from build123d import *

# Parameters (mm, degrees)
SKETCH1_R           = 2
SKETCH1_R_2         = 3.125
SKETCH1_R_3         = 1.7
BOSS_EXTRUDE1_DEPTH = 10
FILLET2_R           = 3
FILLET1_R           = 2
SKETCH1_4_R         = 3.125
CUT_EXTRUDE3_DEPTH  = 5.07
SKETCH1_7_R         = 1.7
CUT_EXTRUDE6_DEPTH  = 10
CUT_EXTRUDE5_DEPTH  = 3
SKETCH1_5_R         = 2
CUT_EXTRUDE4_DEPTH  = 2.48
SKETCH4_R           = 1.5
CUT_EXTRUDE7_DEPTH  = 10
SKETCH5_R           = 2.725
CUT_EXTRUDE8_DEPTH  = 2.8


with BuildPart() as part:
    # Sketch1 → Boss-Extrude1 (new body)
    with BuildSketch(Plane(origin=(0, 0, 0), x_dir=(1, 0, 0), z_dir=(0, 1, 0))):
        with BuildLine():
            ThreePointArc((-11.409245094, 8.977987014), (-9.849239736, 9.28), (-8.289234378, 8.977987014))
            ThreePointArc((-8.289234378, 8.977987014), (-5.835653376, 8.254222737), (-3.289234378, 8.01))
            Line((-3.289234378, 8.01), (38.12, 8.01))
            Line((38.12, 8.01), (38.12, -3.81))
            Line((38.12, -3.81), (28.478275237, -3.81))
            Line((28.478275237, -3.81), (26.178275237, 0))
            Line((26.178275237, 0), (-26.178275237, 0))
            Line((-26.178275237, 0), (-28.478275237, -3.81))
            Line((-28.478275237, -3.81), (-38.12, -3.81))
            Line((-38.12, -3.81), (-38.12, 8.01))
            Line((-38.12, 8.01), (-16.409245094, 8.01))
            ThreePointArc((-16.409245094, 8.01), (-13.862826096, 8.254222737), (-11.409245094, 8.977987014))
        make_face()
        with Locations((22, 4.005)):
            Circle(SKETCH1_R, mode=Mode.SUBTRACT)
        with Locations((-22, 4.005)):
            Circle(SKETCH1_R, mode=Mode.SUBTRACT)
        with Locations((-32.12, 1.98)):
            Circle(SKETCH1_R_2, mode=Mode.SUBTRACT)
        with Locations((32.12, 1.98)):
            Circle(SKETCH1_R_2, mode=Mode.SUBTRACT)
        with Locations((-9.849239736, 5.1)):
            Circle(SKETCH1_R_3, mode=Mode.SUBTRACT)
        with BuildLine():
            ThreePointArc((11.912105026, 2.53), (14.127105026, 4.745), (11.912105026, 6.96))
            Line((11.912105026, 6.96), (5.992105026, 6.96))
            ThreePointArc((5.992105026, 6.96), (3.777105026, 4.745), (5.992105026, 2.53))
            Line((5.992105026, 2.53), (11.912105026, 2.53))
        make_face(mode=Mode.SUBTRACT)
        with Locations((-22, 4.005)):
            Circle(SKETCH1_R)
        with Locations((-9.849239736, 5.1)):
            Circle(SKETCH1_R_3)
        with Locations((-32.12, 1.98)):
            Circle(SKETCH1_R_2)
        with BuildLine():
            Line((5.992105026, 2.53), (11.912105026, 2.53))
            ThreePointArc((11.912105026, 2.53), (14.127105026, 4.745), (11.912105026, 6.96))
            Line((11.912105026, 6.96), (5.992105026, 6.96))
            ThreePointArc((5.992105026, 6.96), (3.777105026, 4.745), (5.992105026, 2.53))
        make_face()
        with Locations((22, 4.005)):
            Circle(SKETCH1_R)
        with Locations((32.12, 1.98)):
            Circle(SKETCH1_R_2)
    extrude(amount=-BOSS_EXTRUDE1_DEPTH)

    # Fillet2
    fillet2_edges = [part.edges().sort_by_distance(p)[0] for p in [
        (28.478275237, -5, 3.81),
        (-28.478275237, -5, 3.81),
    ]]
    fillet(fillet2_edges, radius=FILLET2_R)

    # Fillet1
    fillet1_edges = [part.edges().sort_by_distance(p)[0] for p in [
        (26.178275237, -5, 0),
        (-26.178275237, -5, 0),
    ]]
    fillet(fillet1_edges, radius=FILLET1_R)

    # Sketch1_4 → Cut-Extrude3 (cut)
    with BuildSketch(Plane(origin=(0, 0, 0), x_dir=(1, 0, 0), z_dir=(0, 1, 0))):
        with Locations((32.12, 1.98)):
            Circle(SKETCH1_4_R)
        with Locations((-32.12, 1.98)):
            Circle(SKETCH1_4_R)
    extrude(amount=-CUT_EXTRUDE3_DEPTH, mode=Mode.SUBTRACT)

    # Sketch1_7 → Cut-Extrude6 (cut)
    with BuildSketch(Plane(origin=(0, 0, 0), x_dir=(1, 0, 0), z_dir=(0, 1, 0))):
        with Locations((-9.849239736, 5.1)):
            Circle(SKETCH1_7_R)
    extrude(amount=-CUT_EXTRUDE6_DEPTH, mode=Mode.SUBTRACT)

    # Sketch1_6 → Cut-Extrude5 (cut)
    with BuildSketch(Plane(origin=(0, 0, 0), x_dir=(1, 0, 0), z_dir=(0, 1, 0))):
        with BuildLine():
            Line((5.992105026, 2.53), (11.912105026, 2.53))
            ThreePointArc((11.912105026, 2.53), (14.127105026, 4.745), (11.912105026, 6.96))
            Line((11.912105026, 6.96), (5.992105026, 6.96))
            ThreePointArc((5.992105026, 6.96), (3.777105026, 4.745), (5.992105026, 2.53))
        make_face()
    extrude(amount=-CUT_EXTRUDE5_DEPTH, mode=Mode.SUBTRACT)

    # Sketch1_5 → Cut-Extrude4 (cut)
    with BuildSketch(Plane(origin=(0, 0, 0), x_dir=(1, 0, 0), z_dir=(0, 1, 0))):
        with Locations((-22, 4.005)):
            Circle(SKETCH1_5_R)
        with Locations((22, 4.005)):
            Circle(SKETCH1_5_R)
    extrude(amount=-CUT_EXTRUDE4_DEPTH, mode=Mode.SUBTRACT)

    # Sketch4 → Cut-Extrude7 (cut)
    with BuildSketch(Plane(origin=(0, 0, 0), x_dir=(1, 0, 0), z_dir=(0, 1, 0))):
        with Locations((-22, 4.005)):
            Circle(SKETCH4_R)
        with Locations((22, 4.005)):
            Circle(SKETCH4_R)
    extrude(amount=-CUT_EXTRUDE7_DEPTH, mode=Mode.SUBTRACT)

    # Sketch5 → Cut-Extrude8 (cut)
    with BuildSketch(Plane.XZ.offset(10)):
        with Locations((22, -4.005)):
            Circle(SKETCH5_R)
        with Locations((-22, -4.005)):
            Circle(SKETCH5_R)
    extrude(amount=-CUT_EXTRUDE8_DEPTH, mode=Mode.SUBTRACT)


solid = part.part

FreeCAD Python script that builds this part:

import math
import FreeCAD as App
import Part
import Sketcher
from FreeCAD import Vector
Q = App.Units.Quantity


def edges_at(feature, points):
    """Names of the edges that pass closest to the given points."""
    edges = feature.Shape.Edges
    near = lambda p: min(range(len(edges)), key=lambda i: edges[i].distToShape(Part.Vertex(*p))[0])
    return sorted({f"Edge{near(p) + 1}" for p in points})

doc = App.newDocument("Part")
body = doc.addObject("PartDesign::Body", "Body")

sketch1 = doc.addObject("Sketcher::SketchObject", "Sketch")
body.addObject(sketch1)
sketch1.AttachmentSupport = (doc.XZ_Plane, [""])
sketch1.MapMode = "FlatFace"
sketch1.addGeometry([
    Part.ArcOfCircle(Part.Circle(Vector(-9.84924, -5.1, 0), Vector(0, 0, 1), 4.18), math.radians(-111.913539), math.radians(-68.086461)),
    Part.ArcOfCircle(Part.Circle(Vector(-16.409245, -21.40739, 0), Vector(0, 0, 1), 13.39739), math.radians(68.086461), math.radians(90)),
    Part.LineSegment(Vector(-16.409245, -8.01, 0), Vector(-38.12, -8.01, 0)),
    Part.LineSegment(Vector(-38.12, -8.01, 0), Vector(-38.12, 3.81, 0)),
    Part.LineSegment(Vector(-38.12, 3.81, 0), Vector(-28.478275, 3.81, 0)),
    Part.LineSegment(Vector(-28.478275, 3.81, 0), Vector(-26.178275, 0, 0)),
    Part.LineSegment(Vector(-26.178275, 0, 0), Vector(26.178275, 0, 0)),
    Part.LineSegment(Vector(26.178275, 0, 0), Vector(28.478275, 3.81, 0)),
    Part.LineSegment(Vector(28.478275, 3.81, 0), Vector(38.12, 3.81, 0)),
    Part.LineSegment(Vector(38.12, 3.81, 0), Vector(38.12, -8.01, 0)),
    Part.LineSegment(Vector(38.12, -8.01, 0), Vector(-3.289234, -8.01, 0)),
    Part.ArcOfCircle(Part.Circle(Vector(-3.289234, -21.40739, 0), Vector(0, 0, 1), 13.39739), math.radians(90), math.radians(111.913539)),
], False)
sketch1.addConstraint([
    Sketcher.Constraint("Tangent", 0, 1, 1, 1),
    Sketcher.Constraint("Tangent", 1, 2, 2, 1),
    Sketcher.Constraint("Coincident", 2, 2, 3, 1),
    Sketcher.Constraint("Coincident", 3, 2, 4, 1),
    Sketcher.Constraint("Coincident", 4, 2, 5, 1),
    Sketcher.Constraint("Coincident", 5, 2, 6, 1),
    Sketcher.Constraint("Coincident", 6, 2, 7, 1),
    Sketcher.Constraint("Coincident", 7, 2, 8, 1),
    Sketcher.Constraint("Coincident", 8, 2, 9, 1),
    Sketcher.Constraint("Coincident", 9, 2, 10, 1),
    Sketcher.Constraint("Tangent", 10, 2, 11, 1),
    Sketcher.Constraint("Tangent", 11, 2, 0, 2),
    Sketcher.Constraint("Horizontal", 2),
    Sketcher.Constraint("Vertical", 3),
    Sketcher.Constraint("Horizontal", 4),
    Sketcher.Constraint("Horizontal", 6),
    Sketcher.Constraint("Horizontal", 8),
    Sketcher.Constraint("Vertical", 9),
    Sketcher.Constraint("Horizontal", 10),
    Sketcher.Constraint("Equal", 1, 11),
    Sketcher.Constraint("Symmetric", 5, 2, 6, 2, -1, 1),
    Sketcher.Constraint("Symmetric", 4, 2, 7, 2, -2),
    Sketcher.Constraint("Symmetric", 2, 2, 9, 2, -2),
    Sketcher.Constraint("Radius", 0, Q("4.18 mm")),
    Sketcher.Constraint("DistanceX", 1, 3, 0, 1, Q("5 mm")),
    Sketcher.Constraint("DistanceY", 3, 1, 3, 2, Q("11.82 mm")),
    Sketcher.Constraint("DistanceY", 0, 3, -1, 1, Q("5.1 mm")),
    Sketcher.Constraint("DistanceX", 4, 2, 5, 2, Q("2.3 mm")),
    Sketcher.Constraint("DistanceY", 1, 2, -1, 1, Q("8.01 mm")),
    Sketcher.Constraint("DistanceX", 2, 2, -1, 1, Q("38.12 mm")),
    Sketcher.Constraint("DistanceX", 6, 1, 6, 2, Q("52.35655 mm")),
    Sketcher.Constraint("DistanceX", 2, 2, 2, 1, Q("21.710755 mm")),
])
pad1 = doc.addObject("PartDesign::Pad", "Pad")
body.addObject(pad1)
pad1.Profile = sketch1
pad1.Length = 10
doc.recompute()

fillet = doc.addObject("PartDesign::Fillet", "Fillet")
body.addObject(fillet)
fillet.Base = (pad1, edges_at(pad1, [(28.478, -5, 3.81), (-28.478, -5, 3.81)]))
fillet.Radius = 3
doc.recompute()

fillet2 = doc.addObject("PartDesign::Fillet", "Fillet001")
body.addObject(fillet2)
fillet2.Base = (fillet, edges_at(fillet, [(26.178, -5, 0), (-26.178, -5, 0)]))
fillet2.Radius = 2

sketch2 = doc.addObject("Sketcher::SketchObject", "Sketch001")
body.addObject(sketch2)
sketch2.AttachmentSupport = (doc.XZ_Plane, [""])
sketch2.MapMode = "FlatFace"
sketch2.addGeometry([
    Part.Circle(Vector(32.12, -1.98, 0), Vector(0, 0, 1), 3.125),
    Part.Circle(Vector(-32.12, -1.98, 0), Vector(0, 0, 1), 3.125),
], False)
sketch2.addConstraint([
    Sketcher.Constraint("Equal", 0, 1),
    Sketcher.Constraint("Symmetric", 0, 3, 1, 3, -2),
    Sketcher.Constraint("Diameter", 0, Q("6.25 mm")),
    Sketcher.Constraint("DistanceX", -1, 1, 0, 3, Q("32.12 mm")),
    Sketcher.Constraint("DistanceY", 0, 3, -1, 1, Q("1.98 mm")),
])
pocket1 = doc.addObject("PartDesign::Pocket", "Pocket")
body.addObject(pocket1)
pocket1.Profile = sketch2
pocket1.Length = 5.07
pocket1.Reversed = True

sketch3 = doc.addObject("Sketcher::SketchObject", "Sketch002")
body.addObject(sketch3)
sketch3.AttachmentSupport = (doc.XZ_Plane, [""])
sketch3.MapMode = "FlatFace"
sketch3.addGeometry(Part.Circle(Vector(-9.84924, -5.1, 0), Vector(0, 0, 1), 1.7), False)
sketch3.addConstraint([
    Sketcher.Constraint("Diameter", 0, Q("3.4 mm")),
    Sketcher.Constraint("DistanceY", 0, 3, -1, 1, Q("5.1 mm")),
    Sketcher.Constraint("DistanceX", 0, 3, -1, 1, Q("9.84924 mm")),
])
pocket2 = doc.addObject("PartDesign::Pocket", "Pocket001")
body.addObject(pocket2)
pocket2.Profile = sketch3
pocket2.Length = 10
pocket2.Reversed = True

sketch4 = doc.addObject("Sketcher::SketchObject", "Sketch003")
body.addObject(sketch4)
sketch4.AttachmentSupport = (doc.XZ_Plane, [""])
sketch4.MapMode = "FlatFace"
sketch4.addGeometry([
    Part.LineSegment(Vector(5.992105, -2.53, 0), Vector(11.912105, -2.53, 0)),
    Part.ArcOfCircle(Part.Circle(Vector(11.912105, -4.745, 0), Vector(0, 0, 1), 2.215), math.radians(-90), math.radians(90)),
    Part.LineSegment(Vector(11.912105, -6.96, 0), Vector(5.992105, -6.96, 0)),
    Part.ArcOfCircle(Part.Circle(Vector(5.992105, -4.745, 0), Vector(0, 0, 1), 2.215), math.radians(90), math.radians(270)),
], False)
sketch4.addConstraint([
    Sketcher.Constraint("Tangent", 0, 2, 1, 2),
    Sketcher.Constraint("Tangent", 1, 1, 2, 1),
    Sketcher.Constraint("Tangent", 2, 2, 3, 2),
    Sketcher.Constraint("Tangent", 3, 1, 0, 1),
    Sketcher.Constraint("Horizontal", 0),
    Sketcher.Constraint("Horizontal", 2),
    Sketcher.Constraint("Radius", 1, Q("2.215 mm")),
    Sketcher.Constraint("DistanceX", 0, 1, 0, 2, Q("5.92 mm")),
    Sketcher.Constraint("DistanceY", 0, 2, -1, 1, Q("2.53 mm")),
    Sketcher.Constraint("DistanceX", -1, 1, 1, 3, Q("11.912105 mm")),
])
pocket3 = doc.addObject("PartDesign::Pocket", "Pocket002")
body.addObject(pocket3)
pocket3.Profile = sketch4
pocket3.Length = 3
pocket3.Reversed = True

sketch5 = doc.addObject("Sketcher::SketchObject", "Sketch004")
body.addObject(sketch5)
sketch5.AttachmentSupport = (doc.XZ_Plane, [""])
sketch5.MapMode = "FlatFace"
sketch5.addGeometry([
    Part.Circle(Vector(-22, -4.005, 0), Vector(0, 0, 1), 2),
    Part.Circle(Vector(22, -4.005, 0), Vector(0, 0, 1), 2),
], False)
sketch5.addConstraint([
    Sketcher.Constraint("Equal", 0, 1),
    Sketcher.Constraint("Symmetric", 0, 3, 1, 3, -2),
    Sketcher.Constraint("Diameter", 0, Q("4 mm")),
    Sketcher.Constraint("DistanceX", 0, 3, -1, 1, Q("22 mm")),
    Sketcher.Constraint("DistanceY", 0, 3, -1, 1, Q("4.005 mm")),
])
pocket4 = doc.addObject("PartDesign::Pocket", "Pocket003")
body.addObject(pocket4)
pocket4.Profile = sketch5
pocket4.Length = 2.48
pocket4.Reversed = True

sketch6 = doc.addObject("Sketcher::SketchObject", "Sketch005")
body.addObject(sketch6)
sketch6.AttachmentSupport = (doc.XZ_Plane, [""])
sketch6.MapMode = "FlatFace"
sketch6.addGeometry([
    Part.Circle(Vector(-22, -4.005, 0), Vector(0, 0, 1), 1.5),
    Part.Circle(Vector(22, -4.005, 0), Vector(0, 0, 1), 1.5),
], False)
sketch6.addConstraint([
    Sketcher.Constraint("Equal", 0, 1),
    Sketcher.Constraint("Symmetric", 0, 3, 1, 3, -2),
    Sketcher.Constraint("Diameter", 0, Q("3 mm")),
    Sketcher.Constraint("DistanceX", 0, 3, -1, 1, Q("22 mm")),
    Sketcher.Constraint("DistanceY", 0, 3, -1, 1, Q("4.005 mm")),
])
pocket5 = doc.addObject("PartDesign::Pocket", "Pocket004")
body.addObject(pocket5)
pocket5.Profile = sketch6
pocket5.Length = 10
pocket5.Reversed = True

sketch7 = doc.addObject("Sketcher::SketchObject", "Sketch006")
body.addObject(sketch7)
sketch7.AttachmentSupport = (doc.XZ_Plane, [""])
sketch7.MapMode = "FlatFace"
sketch7.AttachmentOffset = App.Placement(Vector(0, 0, 10), App.Rotation())
sketch7.addGeometry([
    Part.Circle(Vector(22, -4.005, 0), Vector(0, 0, 1), 2.725),
    Part.Circle(Vector(-22, -4.005, 0), Vector(0, 0, 1), 2.725),
], False)
sketch7.addConstraint([
    Sketcher.Constraint("Equal", 0, 1),
    Sketcher.Constraint("Symmetric", 0, 3, 1, 3, -2),
    Sketcher.Constraint("Diameter", 0, Q("5.45 mm")),
    Sketcher.Constraint("DistanceX", -1, 1, 0, 3, Q("22 mm")),
    Sketcher.Constraint("DistanceY", 0, 3, -1, 1, Q("4.005 mm")),
])
pocket6 = doc.addObject("PartDesign::Pocket", "Pocket005")
body.addObject(pocket6)
pocket6.Profile = sketch7
pocket6.Length = 2.8

doc.recompute()
